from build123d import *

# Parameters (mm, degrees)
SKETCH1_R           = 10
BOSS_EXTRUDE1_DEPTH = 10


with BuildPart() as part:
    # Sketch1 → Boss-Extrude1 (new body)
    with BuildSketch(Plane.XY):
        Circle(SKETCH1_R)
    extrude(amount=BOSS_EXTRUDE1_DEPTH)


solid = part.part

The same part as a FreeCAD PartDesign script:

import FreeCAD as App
import Part
import Sketcher

V = App.Vector
Q = App.Units.Quantity

doc = App.newDocument("Part")
body = doc.addObject("PartDesign::Body", "Body")

# Sketch on XY plane
sketch1 = doc.addObject("Sketcher::SketchObject", "Sketch")
body.addObject(sketch1)
sketch1.AttachmentSupport = (doc.XY_Plane, [""])
sketch1.MapMode = "FlatFace"
sketch1.addGeometry(Part.Circle(V(0, 0, 0), V(0, 0, 1), 10), False)
sketch1.addConstraint(Sketcher.Constraint("Coincident", 0, 3, -1, 1))
sketch1.addConstraint(Sketcher.Constraint("Diameter", 0, Q("20 mm")))
pad1 = doc.addObject("PartDesign::Pad", "Pad")
body.addObject(pad1)
pad1.Profile = sketch1
pad1.Length = 10

doc.recompute()
